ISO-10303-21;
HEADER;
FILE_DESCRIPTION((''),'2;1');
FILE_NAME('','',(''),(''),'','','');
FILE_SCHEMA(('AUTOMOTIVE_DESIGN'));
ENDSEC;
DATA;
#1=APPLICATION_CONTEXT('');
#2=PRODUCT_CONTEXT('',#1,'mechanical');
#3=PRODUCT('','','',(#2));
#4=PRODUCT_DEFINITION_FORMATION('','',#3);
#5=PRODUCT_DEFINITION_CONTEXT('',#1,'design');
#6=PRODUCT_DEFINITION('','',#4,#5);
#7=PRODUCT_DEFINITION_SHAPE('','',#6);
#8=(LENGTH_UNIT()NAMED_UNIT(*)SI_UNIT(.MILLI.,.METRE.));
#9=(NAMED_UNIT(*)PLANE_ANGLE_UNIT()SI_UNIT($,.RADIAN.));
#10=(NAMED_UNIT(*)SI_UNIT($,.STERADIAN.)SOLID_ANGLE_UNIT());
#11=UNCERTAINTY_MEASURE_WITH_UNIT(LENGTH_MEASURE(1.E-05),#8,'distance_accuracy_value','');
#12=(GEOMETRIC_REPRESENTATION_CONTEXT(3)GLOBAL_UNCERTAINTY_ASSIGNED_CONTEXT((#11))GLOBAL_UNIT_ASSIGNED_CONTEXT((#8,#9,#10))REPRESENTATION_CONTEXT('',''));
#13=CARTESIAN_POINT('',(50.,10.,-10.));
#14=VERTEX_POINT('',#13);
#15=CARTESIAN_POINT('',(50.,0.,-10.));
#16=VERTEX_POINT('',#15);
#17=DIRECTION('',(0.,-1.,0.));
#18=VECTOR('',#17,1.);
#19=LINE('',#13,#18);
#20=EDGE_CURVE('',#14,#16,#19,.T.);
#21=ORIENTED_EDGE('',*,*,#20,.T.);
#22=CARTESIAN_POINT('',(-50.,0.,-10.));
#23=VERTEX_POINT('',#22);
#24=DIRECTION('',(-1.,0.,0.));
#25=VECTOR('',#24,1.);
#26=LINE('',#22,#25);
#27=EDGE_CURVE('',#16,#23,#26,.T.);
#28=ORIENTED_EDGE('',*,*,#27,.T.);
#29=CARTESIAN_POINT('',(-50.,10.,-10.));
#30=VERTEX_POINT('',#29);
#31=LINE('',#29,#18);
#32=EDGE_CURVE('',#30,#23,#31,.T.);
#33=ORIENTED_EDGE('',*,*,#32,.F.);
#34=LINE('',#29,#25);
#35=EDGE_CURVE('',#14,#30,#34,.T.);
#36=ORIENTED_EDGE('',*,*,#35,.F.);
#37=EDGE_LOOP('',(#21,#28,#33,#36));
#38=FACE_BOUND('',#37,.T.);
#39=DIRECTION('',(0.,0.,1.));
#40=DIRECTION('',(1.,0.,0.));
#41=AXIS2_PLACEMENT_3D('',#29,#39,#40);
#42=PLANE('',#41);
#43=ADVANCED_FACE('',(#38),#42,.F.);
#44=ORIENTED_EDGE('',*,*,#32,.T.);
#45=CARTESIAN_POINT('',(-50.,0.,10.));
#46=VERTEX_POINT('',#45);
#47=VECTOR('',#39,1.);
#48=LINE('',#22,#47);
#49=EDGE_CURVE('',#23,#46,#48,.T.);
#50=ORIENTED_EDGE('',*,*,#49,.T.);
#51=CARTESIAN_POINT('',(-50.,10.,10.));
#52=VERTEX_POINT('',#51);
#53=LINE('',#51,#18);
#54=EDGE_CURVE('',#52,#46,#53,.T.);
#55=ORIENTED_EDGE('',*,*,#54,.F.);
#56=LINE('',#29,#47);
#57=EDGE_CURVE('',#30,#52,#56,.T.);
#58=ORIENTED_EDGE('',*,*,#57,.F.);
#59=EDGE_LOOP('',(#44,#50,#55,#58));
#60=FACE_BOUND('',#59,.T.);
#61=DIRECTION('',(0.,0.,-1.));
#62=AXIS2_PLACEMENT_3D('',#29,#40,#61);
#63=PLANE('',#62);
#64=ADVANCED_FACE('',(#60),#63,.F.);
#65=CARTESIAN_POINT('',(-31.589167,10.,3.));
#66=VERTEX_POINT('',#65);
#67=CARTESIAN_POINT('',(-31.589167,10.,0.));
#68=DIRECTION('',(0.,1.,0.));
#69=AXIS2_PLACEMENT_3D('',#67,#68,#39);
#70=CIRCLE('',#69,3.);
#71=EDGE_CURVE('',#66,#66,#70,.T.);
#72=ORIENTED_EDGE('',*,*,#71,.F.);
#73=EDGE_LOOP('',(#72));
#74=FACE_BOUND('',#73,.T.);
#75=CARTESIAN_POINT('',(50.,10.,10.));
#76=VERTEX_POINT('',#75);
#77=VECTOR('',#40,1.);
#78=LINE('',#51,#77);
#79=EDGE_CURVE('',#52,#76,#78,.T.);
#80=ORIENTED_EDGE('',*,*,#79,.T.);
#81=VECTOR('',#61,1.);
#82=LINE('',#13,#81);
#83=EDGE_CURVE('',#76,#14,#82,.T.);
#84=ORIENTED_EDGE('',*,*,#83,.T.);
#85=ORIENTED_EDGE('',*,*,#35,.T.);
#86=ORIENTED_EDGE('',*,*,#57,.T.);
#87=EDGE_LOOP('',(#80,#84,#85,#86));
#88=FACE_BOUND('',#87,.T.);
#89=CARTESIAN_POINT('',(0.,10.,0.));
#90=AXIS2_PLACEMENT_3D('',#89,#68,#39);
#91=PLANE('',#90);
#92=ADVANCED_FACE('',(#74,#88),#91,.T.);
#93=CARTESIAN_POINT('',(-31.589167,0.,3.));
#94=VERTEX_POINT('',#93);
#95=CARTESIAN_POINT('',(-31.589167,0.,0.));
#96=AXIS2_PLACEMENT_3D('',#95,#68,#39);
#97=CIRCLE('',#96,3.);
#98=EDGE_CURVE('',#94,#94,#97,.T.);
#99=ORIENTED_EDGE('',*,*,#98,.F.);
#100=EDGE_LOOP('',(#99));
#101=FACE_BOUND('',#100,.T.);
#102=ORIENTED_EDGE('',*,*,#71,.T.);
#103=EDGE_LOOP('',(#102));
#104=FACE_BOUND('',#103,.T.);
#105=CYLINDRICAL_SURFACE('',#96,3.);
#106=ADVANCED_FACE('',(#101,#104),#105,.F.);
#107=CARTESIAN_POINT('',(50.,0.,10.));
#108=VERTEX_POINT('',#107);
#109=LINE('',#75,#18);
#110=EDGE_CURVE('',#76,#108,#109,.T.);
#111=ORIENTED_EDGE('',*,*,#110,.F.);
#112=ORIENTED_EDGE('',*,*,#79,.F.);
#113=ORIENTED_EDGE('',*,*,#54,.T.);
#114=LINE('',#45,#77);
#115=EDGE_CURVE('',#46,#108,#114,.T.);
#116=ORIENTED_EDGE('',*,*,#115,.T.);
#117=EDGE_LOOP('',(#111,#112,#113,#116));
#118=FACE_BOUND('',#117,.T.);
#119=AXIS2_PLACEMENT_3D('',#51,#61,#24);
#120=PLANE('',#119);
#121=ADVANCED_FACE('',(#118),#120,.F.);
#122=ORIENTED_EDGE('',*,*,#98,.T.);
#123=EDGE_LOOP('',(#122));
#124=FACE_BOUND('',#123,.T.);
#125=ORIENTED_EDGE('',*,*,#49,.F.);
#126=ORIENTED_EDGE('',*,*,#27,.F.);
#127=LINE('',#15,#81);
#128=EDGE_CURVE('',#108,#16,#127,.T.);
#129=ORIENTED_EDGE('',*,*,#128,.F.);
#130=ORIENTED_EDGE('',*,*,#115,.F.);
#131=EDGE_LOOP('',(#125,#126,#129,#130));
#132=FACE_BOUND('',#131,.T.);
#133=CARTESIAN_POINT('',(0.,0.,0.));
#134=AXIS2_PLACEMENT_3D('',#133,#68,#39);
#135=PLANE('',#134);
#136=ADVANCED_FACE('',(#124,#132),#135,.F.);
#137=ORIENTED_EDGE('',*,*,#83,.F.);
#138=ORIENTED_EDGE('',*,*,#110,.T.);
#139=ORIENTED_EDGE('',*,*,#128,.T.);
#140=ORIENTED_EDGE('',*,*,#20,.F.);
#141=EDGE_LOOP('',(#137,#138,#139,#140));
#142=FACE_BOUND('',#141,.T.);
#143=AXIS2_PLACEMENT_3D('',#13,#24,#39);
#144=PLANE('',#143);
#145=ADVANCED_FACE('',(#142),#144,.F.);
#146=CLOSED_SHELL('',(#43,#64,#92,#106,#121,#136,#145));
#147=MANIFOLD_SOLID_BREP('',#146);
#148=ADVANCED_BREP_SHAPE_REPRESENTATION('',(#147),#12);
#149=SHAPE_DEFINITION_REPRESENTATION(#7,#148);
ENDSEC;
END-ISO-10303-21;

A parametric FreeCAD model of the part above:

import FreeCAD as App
import Part
import Sketcher
from FreeCAD import Vector

doc = App.newDocument("Part")
body = doc.addObject("PartDesign::Body", "Body")

# Sketch on XZ plane
sketch1 = body.newObject("Sketcher::SketchObject", "Sketch")
sketch1.AttachmentSupport = (doc.getObject("XZ_Plane"), [""])
sketch1.MapMode = "FlatFace"
sketch1.addGeometry([
    Part.LineSegment(Vector(-50, -10, 0), Vector(-50, 10, 0)),
    Part.LineSegment(Vector(-50, 10, 0), Vector(50, 10, 0)),
    Part.LineSegment(Vector(50, 10, 0), Vector(50, -10, 0)),
    Part.LineSegment(Vector(50, -10, 0), Vector(-50, -10, 0)),
], False)
sketch1.addConstraint([
    Sketcher.Constraint("Coincident", 0, 2, 1, 1),
    Sketcher.Constraint("Coincident", 1, 2, 2, 1),
    Sketcher.Constraint("Coincident", 2, 2, 3, 1),
    Sketcher.Constraint("Coincident", 3, 2, 0, 1),
    Sketcher.Constraint("Vertical", 0),
    Sketcher.Constraint("Horizontal", 1),
    Sketcher.Constraint("Vertical", 2),
    Sketcher.Constraint("Horizontal", 3),
    Sketcher.Constraint("Symmetric", 0, 2, 2, 2, -1, 1),
    Sketcher.Constraint("DistanceX", 1, 1, 1, 2, 100.0),
    Sketcher.Constraint("DistanceY", 0, 1, 0, 2, 20.0),
])
pad1 = body.newObject("PartDesign::Pad", "Pad")
pad1.Profile = sketch1
pad1.Length = 10
pad1.Reversed = True

# Sketch on XZ plane
sketch2 = body.newObject("Sketcher::SketchObject", "Sketch001")
sketch2.AttachmentSupport = (doc.getObject("XZ_Plane"), [""])
sketch2.MapMode = "FlatFace"
sketch2.AttachmentOffset = App.Placement(Vector(0, 0, -10), App.Rotation())
sketch2.addGeometry(Part.Circle(Vector(-31.589167, 0, 0), Vector(0, 0, 1), 3), False)
sketch2.addConstraint([
    Sketcher.Constraint("PointOnObject", 0, 3, -1),
    Sketcher.Constraint("Diameter", 0, 6.0),
    Sketcher.Constraint("DistanceX", 0, 3, -1, 1, 31.589167),
])
pocket1 = body.newObject("PartDesign::Pocket", "Pocket")
pocket1.Profile = sketch2
pocket1.Type = "ThroughAll"
pocket1.Reversed = True

doc.recompute()
